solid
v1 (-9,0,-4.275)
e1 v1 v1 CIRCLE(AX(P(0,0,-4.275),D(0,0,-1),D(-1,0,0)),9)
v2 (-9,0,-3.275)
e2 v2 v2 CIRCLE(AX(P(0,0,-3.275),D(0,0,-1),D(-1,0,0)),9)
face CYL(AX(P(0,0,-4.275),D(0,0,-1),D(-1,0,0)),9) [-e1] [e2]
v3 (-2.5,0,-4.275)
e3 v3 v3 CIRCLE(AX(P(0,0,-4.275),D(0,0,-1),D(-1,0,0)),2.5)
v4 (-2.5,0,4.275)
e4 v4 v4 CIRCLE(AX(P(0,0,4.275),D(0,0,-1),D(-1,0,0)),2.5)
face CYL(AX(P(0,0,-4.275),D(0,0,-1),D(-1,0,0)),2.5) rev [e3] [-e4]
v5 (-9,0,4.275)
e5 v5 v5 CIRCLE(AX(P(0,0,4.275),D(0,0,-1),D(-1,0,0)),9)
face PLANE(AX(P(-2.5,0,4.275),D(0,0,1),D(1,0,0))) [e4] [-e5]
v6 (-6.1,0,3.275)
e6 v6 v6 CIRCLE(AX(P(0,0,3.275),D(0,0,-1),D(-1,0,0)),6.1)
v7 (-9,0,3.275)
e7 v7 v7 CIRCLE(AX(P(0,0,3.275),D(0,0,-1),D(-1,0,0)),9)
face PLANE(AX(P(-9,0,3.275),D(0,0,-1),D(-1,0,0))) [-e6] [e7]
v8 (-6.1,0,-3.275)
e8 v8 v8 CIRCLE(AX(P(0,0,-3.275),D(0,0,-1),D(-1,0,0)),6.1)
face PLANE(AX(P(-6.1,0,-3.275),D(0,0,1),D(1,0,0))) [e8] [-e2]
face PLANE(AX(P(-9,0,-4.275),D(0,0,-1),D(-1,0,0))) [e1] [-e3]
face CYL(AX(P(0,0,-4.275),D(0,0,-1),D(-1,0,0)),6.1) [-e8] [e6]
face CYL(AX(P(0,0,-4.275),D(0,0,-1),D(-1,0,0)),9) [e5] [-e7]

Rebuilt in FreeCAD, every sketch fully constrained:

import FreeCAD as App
import Part
import Sketcher


def add_polygon(sketch, points):
    """Adds a closed chain of lines whose ends are joined by coincident constraints."""
    first, n = sketch.GeometryCount, len(points)
    for a, b in zip(points, points[1:] + points[:1]):
        sketch.addGeometry(Part.LineSegment(App.Vector(*a, 0), App.Vector(*b, 0)), False)
    for i in range(n):
        sketch.addConstraint(Sketcher.Constraint("Coincident", first + i, 2, first + (i + 1) % n, 1))

doc = App.newDocument("Part")
body = doc.addObject("PartDesign::Body", "Body")

# Sketch on XZ plane
sketch1 = body.newObject("Sketcher::SketchObject", "Sketch")
sketch1.AttachmentSupport = (doc.getObject("XZ_Plane"), [""])
sketch1.MapMode = "FlatFace"
add_polygon(sketch1, [(-2.5, -4.3), (-9, -4.3), (-9, -3.3), (-6.1, -3.3), (-6.1, 3.3), (-9, 3.3), (-9, 4.3), (-2.5, 4.3)])  # lines 0-7
sketch1.addConstraint([
    Sketcher.Constraint("Horizontal", 0),
    Sketcher.Constraint("Vertical", 1),
    Sketcher.Constraint("Horizontal", 2),
    Sketcher.Constraint("Vertical", 3),
    Sketcher.Constraint("Horizontal", 4),
    Sketcher.Constraint("Vertical", 5),
    Sketcher.Constraint("Horizontal", 6),
    Sketcher.Constraint("Vertical", 7),
    Sketcher.Constraint("Symmetric", 1, 2, 4, 2, -1),
    Sketcher.Constraint("Equal", 1, 5),
    Sketcher.Constraint("DistanceY", 1, 1, 1, 2, 1.0),
    Sketcher.Constraint("DistanceX", 0, 2, 0, 1, 6.5),
    Sketcher.Constraint("DistanceX", 2, 1, 2, 2, 2.9),
    Sketcher.Constraint("DistanceX", 0, 2, -1, 1, 9.0),
    Sketcher.Constraint("DistanceY", 3, 1, 3, 2, 6.55),
])
revolution = body.newObject("PartDesign::Revolution", "Revolution")
revolution.Profile = sketch1
revolution.ReferenceAxis = (sketch1, ["V_Axis"])
revolution.Angle = 360

doc.recompute()
